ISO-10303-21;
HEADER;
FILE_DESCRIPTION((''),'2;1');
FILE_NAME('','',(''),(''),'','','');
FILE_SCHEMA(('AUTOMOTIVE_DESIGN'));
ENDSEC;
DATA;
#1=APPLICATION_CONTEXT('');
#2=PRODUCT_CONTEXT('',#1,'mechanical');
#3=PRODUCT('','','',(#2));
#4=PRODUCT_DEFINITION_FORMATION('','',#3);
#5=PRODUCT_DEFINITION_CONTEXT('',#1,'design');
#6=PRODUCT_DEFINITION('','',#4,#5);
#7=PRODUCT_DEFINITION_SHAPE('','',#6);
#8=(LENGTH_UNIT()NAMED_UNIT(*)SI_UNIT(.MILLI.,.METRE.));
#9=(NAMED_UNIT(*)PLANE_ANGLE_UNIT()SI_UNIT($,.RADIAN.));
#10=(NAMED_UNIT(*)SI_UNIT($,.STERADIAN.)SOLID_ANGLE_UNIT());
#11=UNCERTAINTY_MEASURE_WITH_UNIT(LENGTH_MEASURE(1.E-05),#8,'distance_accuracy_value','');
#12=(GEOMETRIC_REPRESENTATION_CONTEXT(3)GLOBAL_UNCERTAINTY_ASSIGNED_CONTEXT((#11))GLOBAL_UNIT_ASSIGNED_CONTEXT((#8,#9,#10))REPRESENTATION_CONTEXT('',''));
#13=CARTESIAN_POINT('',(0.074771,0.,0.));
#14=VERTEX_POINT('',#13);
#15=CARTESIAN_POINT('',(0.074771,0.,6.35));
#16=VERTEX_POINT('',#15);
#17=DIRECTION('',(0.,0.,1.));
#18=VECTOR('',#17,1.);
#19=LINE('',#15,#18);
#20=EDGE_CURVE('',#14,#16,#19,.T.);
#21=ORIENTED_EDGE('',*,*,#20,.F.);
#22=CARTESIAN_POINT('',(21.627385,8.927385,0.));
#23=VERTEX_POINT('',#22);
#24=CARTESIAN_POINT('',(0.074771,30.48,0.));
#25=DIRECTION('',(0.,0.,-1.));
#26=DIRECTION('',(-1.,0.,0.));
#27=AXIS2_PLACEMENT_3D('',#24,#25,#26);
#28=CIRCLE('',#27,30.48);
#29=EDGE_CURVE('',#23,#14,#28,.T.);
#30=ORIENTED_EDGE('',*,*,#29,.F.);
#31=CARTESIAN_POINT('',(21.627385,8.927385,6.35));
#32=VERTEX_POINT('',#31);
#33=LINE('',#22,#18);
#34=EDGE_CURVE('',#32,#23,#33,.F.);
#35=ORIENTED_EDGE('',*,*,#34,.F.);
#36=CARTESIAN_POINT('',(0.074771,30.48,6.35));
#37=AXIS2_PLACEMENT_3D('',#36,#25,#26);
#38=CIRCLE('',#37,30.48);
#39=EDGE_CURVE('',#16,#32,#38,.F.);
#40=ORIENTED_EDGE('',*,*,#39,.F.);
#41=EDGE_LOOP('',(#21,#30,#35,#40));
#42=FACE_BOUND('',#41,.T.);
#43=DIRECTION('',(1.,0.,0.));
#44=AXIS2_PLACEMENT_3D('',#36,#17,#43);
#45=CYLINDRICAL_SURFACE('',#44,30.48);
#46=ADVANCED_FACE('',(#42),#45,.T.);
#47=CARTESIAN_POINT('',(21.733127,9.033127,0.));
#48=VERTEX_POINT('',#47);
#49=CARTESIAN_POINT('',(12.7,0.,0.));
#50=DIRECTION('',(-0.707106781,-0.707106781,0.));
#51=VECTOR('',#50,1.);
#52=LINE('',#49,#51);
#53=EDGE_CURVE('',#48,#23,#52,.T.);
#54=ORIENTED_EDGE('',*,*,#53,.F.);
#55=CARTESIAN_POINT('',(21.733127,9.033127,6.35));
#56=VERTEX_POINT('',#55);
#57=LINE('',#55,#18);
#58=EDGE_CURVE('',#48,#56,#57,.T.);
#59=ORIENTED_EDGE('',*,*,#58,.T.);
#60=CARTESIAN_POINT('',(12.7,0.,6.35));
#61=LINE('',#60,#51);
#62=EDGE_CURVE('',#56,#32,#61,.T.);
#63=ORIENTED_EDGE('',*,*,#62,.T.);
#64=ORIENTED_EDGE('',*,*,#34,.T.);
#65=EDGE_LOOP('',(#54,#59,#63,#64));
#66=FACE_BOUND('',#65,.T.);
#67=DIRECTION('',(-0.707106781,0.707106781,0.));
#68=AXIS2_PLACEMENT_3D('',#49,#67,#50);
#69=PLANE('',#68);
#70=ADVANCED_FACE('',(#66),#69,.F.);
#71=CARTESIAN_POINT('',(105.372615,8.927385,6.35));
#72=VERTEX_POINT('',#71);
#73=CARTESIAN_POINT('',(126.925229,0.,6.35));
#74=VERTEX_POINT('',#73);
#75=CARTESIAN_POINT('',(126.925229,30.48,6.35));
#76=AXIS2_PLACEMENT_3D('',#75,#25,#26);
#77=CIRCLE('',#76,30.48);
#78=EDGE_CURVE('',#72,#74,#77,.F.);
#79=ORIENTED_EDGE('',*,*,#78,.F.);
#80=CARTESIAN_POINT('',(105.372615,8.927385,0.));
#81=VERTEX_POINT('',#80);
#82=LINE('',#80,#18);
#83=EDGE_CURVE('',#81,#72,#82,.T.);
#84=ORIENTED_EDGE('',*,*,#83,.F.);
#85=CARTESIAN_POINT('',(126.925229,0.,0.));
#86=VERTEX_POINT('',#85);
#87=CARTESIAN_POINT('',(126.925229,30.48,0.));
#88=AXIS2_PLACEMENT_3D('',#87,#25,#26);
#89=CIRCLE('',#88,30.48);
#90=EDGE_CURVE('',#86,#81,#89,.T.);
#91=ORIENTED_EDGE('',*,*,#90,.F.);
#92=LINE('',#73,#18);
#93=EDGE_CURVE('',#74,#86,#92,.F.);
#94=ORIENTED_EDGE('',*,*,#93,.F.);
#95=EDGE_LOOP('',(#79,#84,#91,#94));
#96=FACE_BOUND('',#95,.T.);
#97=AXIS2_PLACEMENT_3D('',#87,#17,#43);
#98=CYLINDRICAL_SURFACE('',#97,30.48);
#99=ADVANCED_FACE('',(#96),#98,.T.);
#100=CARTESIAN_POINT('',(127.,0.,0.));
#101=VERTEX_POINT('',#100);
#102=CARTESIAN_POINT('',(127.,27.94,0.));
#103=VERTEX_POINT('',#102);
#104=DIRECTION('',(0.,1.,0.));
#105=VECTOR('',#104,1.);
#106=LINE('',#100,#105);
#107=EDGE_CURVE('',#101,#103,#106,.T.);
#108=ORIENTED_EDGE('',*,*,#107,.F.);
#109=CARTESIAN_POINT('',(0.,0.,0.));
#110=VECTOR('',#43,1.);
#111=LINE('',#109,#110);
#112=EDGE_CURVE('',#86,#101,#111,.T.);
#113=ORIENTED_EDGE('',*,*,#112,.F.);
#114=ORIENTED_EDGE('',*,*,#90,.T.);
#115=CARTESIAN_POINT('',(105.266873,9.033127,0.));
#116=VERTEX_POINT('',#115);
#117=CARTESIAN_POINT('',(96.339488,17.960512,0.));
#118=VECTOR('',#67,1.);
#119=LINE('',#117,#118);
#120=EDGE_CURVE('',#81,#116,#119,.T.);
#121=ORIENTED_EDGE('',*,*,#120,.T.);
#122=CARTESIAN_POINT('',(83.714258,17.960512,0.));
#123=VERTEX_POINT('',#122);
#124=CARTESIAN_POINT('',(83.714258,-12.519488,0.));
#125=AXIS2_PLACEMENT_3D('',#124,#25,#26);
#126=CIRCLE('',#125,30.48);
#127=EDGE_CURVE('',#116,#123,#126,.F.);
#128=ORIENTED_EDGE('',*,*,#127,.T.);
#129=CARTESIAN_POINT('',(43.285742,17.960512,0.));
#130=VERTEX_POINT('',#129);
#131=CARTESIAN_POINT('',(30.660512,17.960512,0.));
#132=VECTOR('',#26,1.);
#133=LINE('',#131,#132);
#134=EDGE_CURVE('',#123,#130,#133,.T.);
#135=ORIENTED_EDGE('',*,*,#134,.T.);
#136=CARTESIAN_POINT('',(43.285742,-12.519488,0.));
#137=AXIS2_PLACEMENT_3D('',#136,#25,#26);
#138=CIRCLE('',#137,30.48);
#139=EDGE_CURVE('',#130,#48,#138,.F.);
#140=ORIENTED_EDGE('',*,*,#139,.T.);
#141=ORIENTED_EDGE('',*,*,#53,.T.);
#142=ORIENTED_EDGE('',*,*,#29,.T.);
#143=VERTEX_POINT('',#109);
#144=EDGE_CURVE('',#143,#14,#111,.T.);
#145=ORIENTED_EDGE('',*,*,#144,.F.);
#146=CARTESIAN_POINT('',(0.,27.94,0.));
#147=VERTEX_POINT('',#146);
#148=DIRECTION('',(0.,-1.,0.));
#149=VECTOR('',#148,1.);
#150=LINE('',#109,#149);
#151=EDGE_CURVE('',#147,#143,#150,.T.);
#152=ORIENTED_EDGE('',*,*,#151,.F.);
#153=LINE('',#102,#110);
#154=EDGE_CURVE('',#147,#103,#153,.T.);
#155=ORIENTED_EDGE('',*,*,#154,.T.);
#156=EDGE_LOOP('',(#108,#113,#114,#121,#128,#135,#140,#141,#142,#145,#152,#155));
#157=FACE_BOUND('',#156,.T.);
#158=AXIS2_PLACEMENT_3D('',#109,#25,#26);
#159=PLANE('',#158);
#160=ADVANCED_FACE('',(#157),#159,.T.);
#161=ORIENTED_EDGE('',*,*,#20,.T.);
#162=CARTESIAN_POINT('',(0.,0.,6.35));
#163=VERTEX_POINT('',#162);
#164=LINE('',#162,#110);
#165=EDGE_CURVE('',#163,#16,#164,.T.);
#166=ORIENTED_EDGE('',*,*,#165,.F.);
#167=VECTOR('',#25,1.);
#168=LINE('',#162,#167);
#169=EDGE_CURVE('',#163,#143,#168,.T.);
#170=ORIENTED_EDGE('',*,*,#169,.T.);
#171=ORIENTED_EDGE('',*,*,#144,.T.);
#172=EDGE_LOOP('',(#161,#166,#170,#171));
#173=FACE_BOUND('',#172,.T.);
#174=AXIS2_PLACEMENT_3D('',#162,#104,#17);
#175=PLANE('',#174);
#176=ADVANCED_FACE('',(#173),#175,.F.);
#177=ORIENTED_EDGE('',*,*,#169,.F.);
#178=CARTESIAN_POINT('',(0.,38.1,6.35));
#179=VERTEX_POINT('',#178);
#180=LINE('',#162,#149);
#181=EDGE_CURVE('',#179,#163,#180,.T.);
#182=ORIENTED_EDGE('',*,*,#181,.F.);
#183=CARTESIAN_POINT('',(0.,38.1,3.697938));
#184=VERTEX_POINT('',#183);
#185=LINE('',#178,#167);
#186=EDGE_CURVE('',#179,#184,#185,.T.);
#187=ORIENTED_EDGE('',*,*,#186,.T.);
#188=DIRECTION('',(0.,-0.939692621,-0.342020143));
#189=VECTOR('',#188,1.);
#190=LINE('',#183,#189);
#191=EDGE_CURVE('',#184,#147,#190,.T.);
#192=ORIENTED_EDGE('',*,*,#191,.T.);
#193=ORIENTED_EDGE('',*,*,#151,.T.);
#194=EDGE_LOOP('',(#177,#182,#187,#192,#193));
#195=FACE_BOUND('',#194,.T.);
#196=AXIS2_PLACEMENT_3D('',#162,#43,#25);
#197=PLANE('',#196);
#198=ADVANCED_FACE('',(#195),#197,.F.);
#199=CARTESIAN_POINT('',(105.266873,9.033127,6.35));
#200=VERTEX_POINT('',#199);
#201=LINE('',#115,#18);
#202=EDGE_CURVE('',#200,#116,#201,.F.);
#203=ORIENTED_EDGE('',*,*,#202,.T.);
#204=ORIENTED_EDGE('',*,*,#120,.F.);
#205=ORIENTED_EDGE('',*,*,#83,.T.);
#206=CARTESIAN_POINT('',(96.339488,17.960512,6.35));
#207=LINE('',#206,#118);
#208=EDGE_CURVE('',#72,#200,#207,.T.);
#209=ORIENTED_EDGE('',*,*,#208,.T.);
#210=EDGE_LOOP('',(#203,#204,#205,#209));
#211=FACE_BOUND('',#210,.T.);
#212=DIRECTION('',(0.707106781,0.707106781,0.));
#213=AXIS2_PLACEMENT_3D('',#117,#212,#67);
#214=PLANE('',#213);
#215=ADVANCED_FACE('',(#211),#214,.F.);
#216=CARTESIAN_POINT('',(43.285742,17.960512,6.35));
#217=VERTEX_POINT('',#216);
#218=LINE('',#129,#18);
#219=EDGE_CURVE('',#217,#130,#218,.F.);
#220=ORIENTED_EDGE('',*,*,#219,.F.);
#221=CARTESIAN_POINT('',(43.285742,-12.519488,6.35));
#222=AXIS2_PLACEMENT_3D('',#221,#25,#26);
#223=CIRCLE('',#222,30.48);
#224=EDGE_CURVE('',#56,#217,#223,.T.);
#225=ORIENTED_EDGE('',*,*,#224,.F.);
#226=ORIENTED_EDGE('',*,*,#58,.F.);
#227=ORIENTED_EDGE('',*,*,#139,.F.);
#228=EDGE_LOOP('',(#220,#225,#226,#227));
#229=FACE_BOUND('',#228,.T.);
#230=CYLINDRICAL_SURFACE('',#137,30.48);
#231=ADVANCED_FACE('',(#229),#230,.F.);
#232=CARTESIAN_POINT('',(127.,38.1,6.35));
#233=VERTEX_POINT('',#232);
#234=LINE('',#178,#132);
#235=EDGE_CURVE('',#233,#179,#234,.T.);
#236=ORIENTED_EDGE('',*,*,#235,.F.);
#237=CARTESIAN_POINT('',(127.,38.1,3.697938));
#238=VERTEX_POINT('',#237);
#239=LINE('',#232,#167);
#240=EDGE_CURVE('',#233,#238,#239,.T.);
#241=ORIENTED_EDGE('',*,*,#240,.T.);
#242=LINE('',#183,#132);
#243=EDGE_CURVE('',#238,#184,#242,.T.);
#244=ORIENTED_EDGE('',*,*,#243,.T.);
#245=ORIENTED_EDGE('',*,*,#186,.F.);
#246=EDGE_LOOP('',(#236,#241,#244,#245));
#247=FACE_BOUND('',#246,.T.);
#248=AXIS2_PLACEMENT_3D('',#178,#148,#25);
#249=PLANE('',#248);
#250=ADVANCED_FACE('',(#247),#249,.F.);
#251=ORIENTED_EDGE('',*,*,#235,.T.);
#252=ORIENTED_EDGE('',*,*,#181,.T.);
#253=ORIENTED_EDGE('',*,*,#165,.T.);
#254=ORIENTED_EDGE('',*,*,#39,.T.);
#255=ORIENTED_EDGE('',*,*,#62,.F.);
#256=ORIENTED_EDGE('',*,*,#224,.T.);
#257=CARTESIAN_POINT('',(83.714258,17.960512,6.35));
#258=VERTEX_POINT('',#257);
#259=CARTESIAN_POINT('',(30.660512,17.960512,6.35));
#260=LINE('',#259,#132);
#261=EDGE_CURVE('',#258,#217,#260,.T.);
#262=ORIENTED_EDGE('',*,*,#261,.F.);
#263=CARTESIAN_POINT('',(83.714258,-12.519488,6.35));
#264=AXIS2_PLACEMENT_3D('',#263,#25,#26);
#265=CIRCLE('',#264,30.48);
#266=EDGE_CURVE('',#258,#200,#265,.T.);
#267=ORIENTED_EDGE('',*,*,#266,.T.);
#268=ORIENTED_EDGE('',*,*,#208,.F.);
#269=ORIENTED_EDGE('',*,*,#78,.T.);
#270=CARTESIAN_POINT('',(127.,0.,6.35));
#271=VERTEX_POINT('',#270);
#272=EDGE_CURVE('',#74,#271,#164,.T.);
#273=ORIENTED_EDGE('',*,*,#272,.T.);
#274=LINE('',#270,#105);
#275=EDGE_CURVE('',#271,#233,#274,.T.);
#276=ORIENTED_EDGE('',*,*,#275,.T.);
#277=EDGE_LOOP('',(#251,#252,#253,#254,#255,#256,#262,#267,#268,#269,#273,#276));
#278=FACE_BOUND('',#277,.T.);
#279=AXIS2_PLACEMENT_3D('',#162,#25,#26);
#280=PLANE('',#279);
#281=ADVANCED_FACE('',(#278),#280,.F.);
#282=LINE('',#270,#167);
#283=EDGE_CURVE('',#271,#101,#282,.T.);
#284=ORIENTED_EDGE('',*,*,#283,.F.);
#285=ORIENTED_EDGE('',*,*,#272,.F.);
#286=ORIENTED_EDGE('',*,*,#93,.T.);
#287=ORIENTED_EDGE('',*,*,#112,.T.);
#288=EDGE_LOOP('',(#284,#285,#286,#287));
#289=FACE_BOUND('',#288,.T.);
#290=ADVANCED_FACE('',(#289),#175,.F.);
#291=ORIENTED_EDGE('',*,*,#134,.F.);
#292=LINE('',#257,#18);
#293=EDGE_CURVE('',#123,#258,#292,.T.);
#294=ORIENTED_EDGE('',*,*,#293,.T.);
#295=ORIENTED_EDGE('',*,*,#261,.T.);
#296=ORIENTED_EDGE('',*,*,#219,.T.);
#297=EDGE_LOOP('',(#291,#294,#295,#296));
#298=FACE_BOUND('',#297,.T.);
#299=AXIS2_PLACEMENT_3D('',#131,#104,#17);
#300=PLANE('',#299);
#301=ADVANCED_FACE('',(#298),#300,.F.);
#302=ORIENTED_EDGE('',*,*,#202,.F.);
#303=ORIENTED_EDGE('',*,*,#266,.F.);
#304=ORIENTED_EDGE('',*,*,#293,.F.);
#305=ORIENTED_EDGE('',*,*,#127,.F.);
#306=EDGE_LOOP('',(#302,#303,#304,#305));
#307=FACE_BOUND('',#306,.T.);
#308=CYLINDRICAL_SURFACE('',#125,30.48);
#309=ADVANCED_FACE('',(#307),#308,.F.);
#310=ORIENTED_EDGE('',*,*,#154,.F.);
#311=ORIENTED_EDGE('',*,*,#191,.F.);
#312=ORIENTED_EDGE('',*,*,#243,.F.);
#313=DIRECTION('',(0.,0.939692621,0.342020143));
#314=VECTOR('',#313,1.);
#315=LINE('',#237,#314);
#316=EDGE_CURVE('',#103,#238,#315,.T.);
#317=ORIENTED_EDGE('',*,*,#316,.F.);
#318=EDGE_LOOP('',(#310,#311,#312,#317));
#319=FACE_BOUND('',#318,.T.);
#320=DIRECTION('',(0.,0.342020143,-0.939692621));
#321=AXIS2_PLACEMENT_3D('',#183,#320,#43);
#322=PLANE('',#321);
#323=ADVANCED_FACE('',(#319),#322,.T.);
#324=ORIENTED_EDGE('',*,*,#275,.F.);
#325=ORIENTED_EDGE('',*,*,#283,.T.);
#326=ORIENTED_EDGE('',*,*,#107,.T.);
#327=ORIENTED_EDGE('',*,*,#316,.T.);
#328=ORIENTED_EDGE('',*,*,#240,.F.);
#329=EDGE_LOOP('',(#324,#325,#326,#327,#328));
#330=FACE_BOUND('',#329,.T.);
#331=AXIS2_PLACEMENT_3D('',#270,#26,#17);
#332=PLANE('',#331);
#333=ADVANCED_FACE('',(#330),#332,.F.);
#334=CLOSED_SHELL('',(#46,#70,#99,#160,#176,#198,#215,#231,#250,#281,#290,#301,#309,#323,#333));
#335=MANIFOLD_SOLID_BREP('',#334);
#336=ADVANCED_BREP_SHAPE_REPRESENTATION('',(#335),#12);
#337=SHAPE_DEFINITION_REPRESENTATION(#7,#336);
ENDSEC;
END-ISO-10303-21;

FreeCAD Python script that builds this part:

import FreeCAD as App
import Part
import Sketcher

V = App.Vector
Q = App.Units.Quantity


def edges_at(feature, points):
    """Names of the edges that pass closest to the given points."""
    edges = feature.Shape.Edges
    near = lambda p: min(range(len(edges)), key=lambda i: edges[i].distToShape(Part.Vertex(*p))[0])
    return sorted({f"Edge{near(p) + 1}" for p in points})

doc = App.newDocument("Part")
body = doc.addObject("PartDesign::Body", "Body")

# Sketch on XY plane
sketch1 = body.newObject("Sketcher::SketchObject", "Sketch")
sketch1.AttachmentSupport = (doc.getObject("XY_Plane"), [""])
sketch1.MapMode = "FlatFace"
sketch1.addGeometry([
    Part.LineSegment(V(0, 38.1, 0), V(0, 0, 0)),
    Part.LineSegment(V(0, 0, 0), V(127, 0, 0)),
    Part.LineSegment(V(127, 0, 0), V(127, 38.1, 0)),
    Part.LineSegment(V(127, 38.1, 0), V(0, 38.1, 0)),
], False)
sketch1.addConstraint([
    Sketcher.Constraint("Coincident", 0, 2, 1, 1),
    Sketcher.Constraint("Coincident", 1, 2, 2, 1),
    Sketcher.Constraint("Coincident", 2, 2, 3, 1),
    Sketcher.Constraint("Coincident", 3, 2, 0, 1),
    Sketcher.Constraint("Vertical", 0),
    Sketcher.Constraint("Horizontal", 1),
    Sketcher.Constraint("Vertical", 2),
    Sketcher.Constraint("Horizontal", 3),
    Sketcher.Constraint("Coincident", 0, 2, -1, 1),
    Sketcher.Constraint("DistanceX", 1, 1, 1, 2, Q("5 in")),
    Sketcher.Constraint("DistanceY", 0, 2, 0, 1, Q("1.5 in")),
])
pad1 = body.newObject("PartDesign::Pad", "Pad")
pad1.Profile = sketch1
pad1.Length = Q("0.25 in")

# Sketch on XY plane
sketch2 = body.newObject("Sketcher::SketchObject", "Sketch001")
sketch2.AttachmentSupport = (doc.getObject("XY_Plane"), [""])
sketch2.MapMode = "FlatFace"
sketch2.AttachmentOffset = App.Placement(V(0, 0, 0.25 * 25.4), App.Rotation())
sketch2.addGeometry([
    Part.LineSegment(V(30.660512, 17.960512, 0), V(12.7, 0, 0)),
    Part.LineSegment(V(12.7, 0, 0), V(114.3, 0, 0)),
    Part.LineSegment(V(114.3, 0, 0), V(96.339488, 17.960512, 0)),
    Part.LineSegment(V(96.339488, 17.960512, 0), V(30.660512, 17.960512, 0)),
], False)
sketch2.addConstraint([
    Sketcher.Constraint("Coincident", 0, 2, 1, 1),
    Sketcher.Constraint("Coincident", 1, 2, 2, 1),
    Sketcher.Constraint("Coincident", 2, 2, 3, 1),
    Sketcher.Constraint("Coincident", 3, 2, 0, 1),
    Sketcher.Constraint("Horizontal", 1),
    Sketcher.Constraint("Horizontal", 3),
    Sketcher.Constraint("PointOnObject", 0, 2, -1),
    Sketcher.Constraint("Perpendicular", 0, 2),
    Sketcher.Constraint("Equal", 0, 2),
    Sketcher.Constraint("DistanceX", 1, 1, 1, 2, Q("4 in")),
    Sketcher.Constraint("Distance", 0, Q("1 in")),
    Sketcher.Constraint("DistanceX", -1, 1, 0, 2, Q("0.5 in")),
])
pocket1 = body.newObject("PartDesign::Pocket", "Pocket")
pocket1.Profile = sketch2
pocket1.Length = Q("0.25 in")
doc.recompute()

fillet = body.newObject("PartDesign::Fillet", "Fillet")
fillet.Base = (pocket1, edges_at(pocket1, [
    (114.3, 0, 3.175),
    (12.7, 0, 3.175),
    (30.661, 17.961, 3.175),
    (96.339, 17.961, 3.175),
]))
fillet.Radius = Q("1.2 in")
doc.recompute()

chamfer = body.newObject("PartDesign::Chamfer", "Chamfer")
chamfer.Base = (fillet, edges_at(fillet, [(63.5, 38.1, 0)]))
chamfer.ChamferType = "Two distances"
chamfer.Size = Q("0.4 in")
chamfer.Size2 = 3.697938

doc.recompute()
